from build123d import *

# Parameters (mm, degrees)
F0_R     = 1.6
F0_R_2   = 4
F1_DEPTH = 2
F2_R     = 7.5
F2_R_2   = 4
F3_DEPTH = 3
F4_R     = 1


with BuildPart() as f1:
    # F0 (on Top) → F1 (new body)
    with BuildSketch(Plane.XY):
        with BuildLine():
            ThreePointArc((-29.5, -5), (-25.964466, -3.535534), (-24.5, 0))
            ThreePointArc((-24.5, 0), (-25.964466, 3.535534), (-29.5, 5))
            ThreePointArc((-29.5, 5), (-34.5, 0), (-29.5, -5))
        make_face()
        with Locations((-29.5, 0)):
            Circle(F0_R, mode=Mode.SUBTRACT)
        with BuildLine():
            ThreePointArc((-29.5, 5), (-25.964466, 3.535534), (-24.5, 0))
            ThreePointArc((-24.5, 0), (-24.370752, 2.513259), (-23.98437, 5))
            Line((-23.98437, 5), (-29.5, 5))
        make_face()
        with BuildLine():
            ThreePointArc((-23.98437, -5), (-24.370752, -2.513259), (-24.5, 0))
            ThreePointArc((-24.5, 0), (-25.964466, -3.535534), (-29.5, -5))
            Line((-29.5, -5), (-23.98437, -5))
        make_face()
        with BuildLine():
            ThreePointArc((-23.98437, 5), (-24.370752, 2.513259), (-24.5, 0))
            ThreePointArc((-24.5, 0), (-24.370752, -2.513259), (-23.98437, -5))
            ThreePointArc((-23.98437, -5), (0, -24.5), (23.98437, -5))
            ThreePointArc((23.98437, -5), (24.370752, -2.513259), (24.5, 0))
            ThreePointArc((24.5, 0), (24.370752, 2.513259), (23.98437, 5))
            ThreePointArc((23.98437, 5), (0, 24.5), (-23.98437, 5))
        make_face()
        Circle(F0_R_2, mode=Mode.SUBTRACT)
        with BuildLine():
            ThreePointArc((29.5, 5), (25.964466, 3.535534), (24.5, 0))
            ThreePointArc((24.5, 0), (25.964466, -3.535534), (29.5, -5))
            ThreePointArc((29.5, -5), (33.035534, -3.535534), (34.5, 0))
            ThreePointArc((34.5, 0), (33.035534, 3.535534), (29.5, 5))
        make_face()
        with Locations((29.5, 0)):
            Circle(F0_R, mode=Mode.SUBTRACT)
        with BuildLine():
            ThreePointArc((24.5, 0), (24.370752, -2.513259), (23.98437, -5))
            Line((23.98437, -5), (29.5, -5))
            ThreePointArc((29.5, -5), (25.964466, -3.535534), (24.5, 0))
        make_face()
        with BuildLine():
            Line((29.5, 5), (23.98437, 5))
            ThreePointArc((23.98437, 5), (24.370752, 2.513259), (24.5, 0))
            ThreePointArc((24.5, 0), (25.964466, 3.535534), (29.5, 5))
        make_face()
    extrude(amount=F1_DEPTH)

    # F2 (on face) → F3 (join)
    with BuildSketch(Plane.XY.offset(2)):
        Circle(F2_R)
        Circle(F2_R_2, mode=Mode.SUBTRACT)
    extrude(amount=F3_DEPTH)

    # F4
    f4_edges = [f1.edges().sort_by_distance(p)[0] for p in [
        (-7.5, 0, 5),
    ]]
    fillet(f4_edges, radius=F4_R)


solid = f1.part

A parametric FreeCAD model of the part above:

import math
import FreeCAD as App
import Part
import Sketcher
from FreeCAD import Vector
Q = App.Units.Quantity


def edges_at(feature, points):
    """Names of the edges that pass closest to the given points."""
    edges = feature.Shape.Edges
    near = lambda p: min(range(len(edges)), key=lambda i: edges[i].distToShape(Part.Vertex(*p))[0])
    return sorted({f"Edge{near(p) + 1}" for p in points})

doc = App.newDocument("Part")
body = doc.addObject("PartDesign::Body", "Body")

sketch1 = body.newObject("Sketcher::SketchObject", "Sketch")
sketch1.AttachmentSupport = (doc.getObject("XY_Plane"), [""])
sketch1.MapMode = "FlatFace"
sketch1.addGeometry([
    Part.LineSegment(Vector(-24, 5, 0), Vector(-29.5, 5, 0)),
    Part.ArcOfCircle(Part.Circle(Vector(-29.5, 0, 0), Vector(0, 0, 1), 5), math.radians(90), math.radians(270)),
    Part.LineSegment(Vector(-29.5, -5, 0), Vector(-24, -5, 0)),
    Part.ArcOfCircle(Part.Circle(Vector(0, 0, 0), Vector(0, 0, 1), 24.5), math.radians(-168), math.radians(-12)),
    Part.LineSegment(Vector(24, -5, 0), Vector(29.5, -5, 0)),
    Part.ArcOfCircle(Part.Circle(Vector(29.5, 0, 0), Vector(0, 0, 1), 5), math.radians(-90), math.radians(0)),
    Part.ArcOfCircle(Part.Circle(Vector(29.5, 0, 0), Vector(0, 0, 1), 5), math.radians(0), math.radians(90)),
    Part.LineSegment(Vector(29.5, 5, 0), Vector(24, 5, 0)),
    Part.ArcOfCircle(Part.Circle(Vector(0, 0, 0), Vector(0, 0, 1), 24.5), math.radians(12), math.radians(168)),
    Part.Circle(Vector(-29.5, 0, 0), Vector(0, 0, 1), 1.6),
    Part.Circle(Vector(0, 0, 0), Vector(0, 0, 1), 4),
    Part.Circle(Vector(29.5, 0, 0), Vector(0, 0, 1), 1.6),
], False)
sketch1.addConstraint([
    Sketcher.Constraint("Tangent", 0, 2, 1, 1),
    Sketcher.Constraint("Tangent", 1, 2, 2, 1),
    Sketcher.Constraint("Coincident", 2, 2, 3, 1),
    Sketcher.Constraint("Coincident", 3, 2, 4, 1),
    Sketcher.Constraint("Tangent", 4, 2, 5, 1),
    Sketcher.Constraint("Tangent", 5, 2, 6, 1),
    Sketcher.Constraint("Tangent", 6, 2, 7, 1),
    Sketcher.Constraint("Coincident", 7, 2, 8, 1),
    Sketcher.Constraint("Coincident", 8, 2, 0, 1),
    Sketcher.Constraint("Horizontal", 0),
    Sketcher.Constraint("Horizontal", 2),
    Sketcher.Constraint("Horizontal", 4),
    Sketcher.Constraint("Horizontal", 7),
    Sketcher.Constraint("Coincident", 3, 3, -1, 1),
    Sketcher.Constraint("Coincident", 8, 3, -1, 1),
    Sketcher.Constraint("Coincident", 10, 3, -1, 1),
    Sketcher.Constraint("Coincident", 9, 3, 1, 3),
    Sketcher.Constraint("Coincident", 11, 3, 5, 3),
    Sketcher.Constraint("Equal", 1, 5),
    Sketcher.Constraint("Equal", 5, 6),
    Sketcher.Constraint("Equal", 3, 8),
    Sketcher.Constraint("Equal", 9, 11),
    Sketcher.Constraint("Symmetric", 1, 3, 5, 3, -1, 1),
    Sketcher.Constraint("PointOnObject", 1, 3, -1),
    Sketcher.Constraint("PointOnObject", 5, 2, -1),
    Sketcher.Constraint("Diameter", 10, Q("8 mm")),
    Sketcher.Constraint("Radius", 1, Q("5 mm")),
    Sketcher.Constraint("Diameter", 9, Q("3.2 mm")),
    Sketcher.Constraint("Radius", 3, Q("24.5 mm")),
    Sketcher.Constraint("DistanceX", 1, 3, 5, 3, Q("59 mm")),
])
pad1 = body.newObject("PartDesign::Pad", "Pad")
pad1.Profile = sketch1
pad1.Length = 2

sketch2 = body.newObject("Sketcher::SketchObject", "Sketch001")
sketch2.AttachmentSupport = (doc.getObject("XY_Plane"), [""])
sketch2.MapMode = "FlatFace"
sketch2.AttachmentOffset = App.Placement(Vector(0, 0, 2), App.Rotation())
sketch2.addGeometry([
    Part.Circle(Vector(0, 0, 0), Vector(0, 0, 1), 7.5),
    Part.Circle(Vector(0, 0, 0), Vector(0, 0, 1), 4),
], False)
sketch2.addConstraint([
    Sketcher.Constraint("Coincident", 0, 3, -1, 1),
    Sketcher.Constraint("Coincident", 1, 3, -1, 1),
    Sketcher.Constraint("Diameter", 0, Q("15 mm")),
    Sketcher.Constraint("Diameter", 1, Q("8 mm")),
])
pad2 = body.newObject("PartDesign::Pad", "Pad001")
pad2.Profile = sketch2
pad2.Length = 3
doc.recompute()

fillet = body.newObject("PartDesign::Fillet", "Fillet")
fillet.Base = (pad2, edges_at(pad2, [(-7.5, 0, 5)]))
fillet.Radius = 1

doc.recompute()
